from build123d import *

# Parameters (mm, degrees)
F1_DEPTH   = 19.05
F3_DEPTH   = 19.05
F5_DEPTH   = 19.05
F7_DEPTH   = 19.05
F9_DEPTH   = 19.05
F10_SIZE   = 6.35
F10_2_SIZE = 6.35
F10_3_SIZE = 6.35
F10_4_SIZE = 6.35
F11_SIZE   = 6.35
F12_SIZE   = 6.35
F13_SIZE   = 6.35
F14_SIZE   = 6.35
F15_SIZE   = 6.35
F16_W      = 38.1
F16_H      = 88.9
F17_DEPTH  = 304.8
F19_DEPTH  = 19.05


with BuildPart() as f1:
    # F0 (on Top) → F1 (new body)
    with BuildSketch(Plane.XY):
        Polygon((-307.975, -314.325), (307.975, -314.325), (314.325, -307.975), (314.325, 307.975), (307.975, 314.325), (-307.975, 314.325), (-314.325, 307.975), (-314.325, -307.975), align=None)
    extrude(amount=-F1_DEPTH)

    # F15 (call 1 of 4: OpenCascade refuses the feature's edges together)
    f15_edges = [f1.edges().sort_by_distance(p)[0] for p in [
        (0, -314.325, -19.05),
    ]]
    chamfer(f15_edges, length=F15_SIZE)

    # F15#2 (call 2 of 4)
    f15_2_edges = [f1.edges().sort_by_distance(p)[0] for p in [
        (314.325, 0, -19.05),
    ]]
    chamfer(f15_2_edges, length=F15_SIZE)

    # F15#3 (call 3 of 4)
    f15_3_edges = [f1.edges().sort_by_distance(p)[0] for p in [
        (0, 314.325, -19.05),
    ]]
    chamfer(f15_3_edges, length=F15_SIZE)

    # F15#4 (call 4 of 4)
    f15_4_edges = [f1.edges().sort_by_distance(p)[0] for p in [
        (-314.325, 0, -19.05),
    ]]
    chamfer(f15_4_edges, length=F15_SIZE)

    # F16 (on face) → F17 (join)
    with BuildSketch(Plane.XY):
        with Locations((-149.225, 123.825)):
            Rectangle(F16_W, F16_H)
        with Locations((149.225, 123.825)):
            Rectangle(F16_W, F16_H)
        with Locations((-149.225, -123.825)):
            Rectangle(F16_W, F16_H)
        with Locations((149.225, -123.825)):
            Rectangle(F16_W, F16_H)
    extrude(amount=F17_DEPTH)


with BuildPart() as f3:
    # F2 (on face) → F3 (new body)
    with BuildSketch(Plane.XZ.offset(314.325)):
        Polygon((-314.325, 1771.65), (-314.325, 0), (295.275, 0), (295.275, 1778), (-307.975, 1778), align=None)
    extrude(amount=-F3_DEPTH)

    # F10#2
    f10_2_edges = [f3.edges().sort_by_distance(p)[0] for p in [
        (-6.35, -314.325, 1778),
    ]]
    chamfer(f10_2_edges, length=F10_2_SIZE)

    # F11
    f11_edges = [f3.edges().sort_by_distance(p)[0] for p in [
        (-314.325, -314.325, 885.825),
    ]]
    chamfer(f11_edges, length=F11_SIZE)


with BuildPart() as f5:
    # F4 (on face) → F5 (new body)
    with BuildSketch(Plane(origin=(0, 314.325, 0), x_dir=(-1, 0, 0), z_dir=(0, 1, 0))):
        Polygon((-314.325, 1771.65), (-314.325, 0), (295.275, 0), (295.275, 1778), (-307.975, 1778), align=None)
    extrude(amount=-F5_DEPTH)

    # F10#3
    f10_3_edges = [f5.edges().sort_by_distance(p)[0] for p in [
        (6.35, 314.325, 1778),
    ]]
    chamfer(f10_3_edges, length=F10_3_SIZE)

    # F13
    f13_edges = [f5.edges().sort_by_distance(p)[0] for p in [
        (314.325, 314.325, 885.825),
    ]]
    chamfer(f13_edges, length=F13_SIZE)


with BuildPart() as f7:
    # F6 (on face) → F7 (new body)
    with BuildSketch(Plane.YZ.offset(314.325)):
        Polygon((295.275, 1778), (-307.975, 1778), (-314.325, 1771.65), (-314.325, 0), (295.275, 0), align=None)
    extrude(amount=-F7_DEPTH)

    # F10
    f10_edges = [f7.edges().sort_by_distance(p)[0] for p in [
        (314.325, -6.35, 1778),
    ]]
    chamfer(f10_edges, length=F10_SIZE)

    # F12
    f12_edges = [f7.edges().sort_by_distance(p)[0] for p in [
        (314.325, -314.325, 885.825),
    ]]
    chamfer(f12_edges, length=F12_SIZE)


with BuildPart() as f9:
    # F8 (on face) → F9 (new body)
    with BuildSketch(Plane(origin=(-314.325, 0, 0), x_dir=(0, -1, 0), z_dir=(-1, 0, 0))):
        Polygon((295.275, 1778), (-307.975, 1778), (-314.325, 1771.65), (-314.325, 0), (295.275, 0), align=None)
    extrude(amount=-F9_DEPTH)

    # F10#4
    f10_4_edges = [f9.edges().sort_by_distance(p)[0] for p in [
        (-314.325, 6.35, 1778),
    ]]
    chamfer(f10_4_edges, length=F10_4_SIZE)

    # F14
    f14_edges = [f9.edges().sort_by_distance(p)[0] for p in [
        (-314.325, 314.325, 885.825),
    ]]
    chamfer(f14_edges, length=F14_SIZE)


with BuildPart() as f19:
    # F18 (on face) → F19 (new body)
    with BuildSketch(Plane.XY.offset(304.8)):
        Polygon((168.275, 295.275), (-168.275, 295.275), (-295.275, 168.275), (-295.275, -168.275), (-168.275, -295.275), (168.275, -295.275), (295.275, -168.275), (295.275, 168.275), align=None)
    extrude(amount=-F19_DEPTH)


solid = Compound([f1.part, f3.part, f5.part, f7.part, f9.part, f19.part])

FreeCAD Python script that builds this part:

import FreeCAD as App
import Part
import Sketcher
from FreeCAD import Vector
Q = App.Units.Quantity


def edges_at(feature, points):
    """Names of the edges that pass closest to the given points."""
    edges = feature.Shape.Edges
    near = lambda p: min(range(len(edges)), key=lambda i: edges[i].distToShape(Part.Vertex(*p))[0])
    return sorted({f"Edge{near(p) + 1}" for p in points})


def add_polygon(sketch, points):
    """Adds a closed chain of lines whose ends are joined by coincident constraints."""
    first, n = sketch.GeometryCount, len(points)
    for a, b in zip(points, points[1:] + points[:1]):
        sketch.addGeometry(Part.LineSegment(App.Vector(*a, 0), App.Vector(*b, 0)), False)
    for i in range(n):
        sketch.addConstraint(Sketcher.Constraint("Coincident", first + i, 2, first + (i + 1) % n, 1))

doc = App.newDocument("Part")
body = doc.addObject("PartDesign::Body", "Body")

sketch1 = body.newObject("Sketcher::SketchObject", "Sketch")
sketch1.AttachmentSupport = (doc.getObject("XY_Plane"), [""])
sketch1.MapMode = "FlatFace"
add_polygon(sketch1, [(-308, -314), (308, -314), (314, -308), (314, 308), (308, 314), (-308, 314), (-314, 308), (-314, -308)])
sketch1.addConstraint([
    Sketcher.Constraint("Horizontal", 0),
    Sketcher.Constraint("Vertical", 2),
    Sketcher.Constraint("Horizontal", 4),
    Sketcher.Constraint("Vertical", 6),
    Sketcher.Constraint("Symmetric", 0, 2, 4, 2, -1, 1),
    Sketcher.Constraint("Symmetric", 1, 2, 5, 2, -1, 1),
    Sketcher.Constraint("Perpendicular", 1, 3),
    Sketcher.Constraint("Perpendicular", 5, 7),
    Sketcher.Constraint("Horizontal", 2, 2, 5, 2),
    Sketcher.Constraint("Horizontal", 1, 2, 6, 2),
    Sketcher.Constraint("Vertical", 0, 2, 3, 2),
    Sketcher.Constraint("Equal", 4, 2),
    Sketcher.Constraint("DistanceX", 0, 1, 0, 2, Q("24.25 in")),
    Sketcher.Constraint("DistanceY", 0, 2, 2, 2, Q("24.5 in")),
])
pad1 = body.newObject("PartDesign::Pad", "Pad")
pad1.Profile = sketch1
pad1.Length = Q("0.75 in")
pad1.Reversed = True
doc.recompute()

chamfer = body.newObject("PartDesign::Chamfer", "Chamfer")
chamfer.Base = (pad1, edges_at(pad1, [(0, -314.325, -19.05)]))
chamfer.Size = Q("0.25 in")
doc.recompute()

chamfer2 = body.newObject("PartDesign::Chamfer", "Chamfer001")
chamfer2.Base = (chamfer, edges_at(chamfer, [(314.325, 0, -19.05)]))
chamfer2.Size = Q("0.25 in")
doc.recompute()

chamfer3 = body.newObject("PartDesign::Chamfer", "Chamfer002")
chamfer3.Base = (chamfer2, edges_at(chamfer2, [(0, 314.325, -19.05)]))
chamfer3.Size = Q("0.25 in")
doc.recompute()

chamfer4 = body.newObject("PartDesign::Chamfer", "Chamfer003")
chamfer4.Base = (chamfer3, edges_at(chamfer3, [(-314.325, 0, -19.05)]))
chamfer4.Size = Q("0.25 in")

sketch2 = body.newObject("Sketcher::SketchObject", "Sketch001")
sketch2.AttachmentSupport = (doc.getObject("XY_Plane"), [""])
sketch2.MapMode = "FlatFace"
add_polygon(sketch2, [(-168, 168), (-168, 79), (-130, 79), (-130, 168)])
add_polygon(sketch2, [(130, 168), (130, 79), (168, 79), (168, 168)])
add_polygon(sketch2, [(-168, -79), (-168, -168), (-130, -168), (-130, -79)])
add_polygon(sketch2, [(130, -79), (130, -168), (168, -168), (168, -79)])
sketch2.addConstraint([
    Sketcher.Constraint("Vertical", 0),
    Sketcher.Constraint("Horizontal", 1),
    Sketcher.Constraint("Vertical", 2),
    Sketcher.Constraint("Horizontal", 3),
    Sketcher.Constraint("Vertical", 4),
    Sketcher.Constraint("Horizontal", 5),
    Sketcher.Constraint("Vertical", 6),
    Sketcher.Constraint("Horizontal", 7),
    Sketcher.Constraint("Vertical", 8),
    Sketcher.Constraint("Horizontal", 9),
    Sketcher.Constraint("Vertical", 10),
    Sketcher.Constraint("Horizontal", 11),
    Sketcher.Constraint("Vertical", 12),
    Sketcher.Constraint("Horizontal", 13),
    Sketcher.Constraint("Vertical", 14),
    Sketcher.Constraint("Horizontal", 15),
    Sketcher.Constraint("Symmetric", 6, 2, 8, 2, -1, 1),
    Sketcher.Constraint("Symmetric", 4, 2, 10, 2, -1, 1),
    Sketcher.Constraint("Symmetric", 2, 2, 12, 2, -1, 1),
    Sketcher.Constraint("Symmetric", 0, 2, 14, 2, -1, 1),
    Sketcher.Constraint("Symmetric", 1, 2, 4, 2, -2),
    Sketcher.Constraint("Symmetric", 3, 2, 6, 2, -2),
    Sketcher.Constraint("DistanceX", 1, 1, 1, 2, Q("1.5 in")),
    Sketcher.Constraint("DistanceY", 0, 2, 0, 1, Q("3.5 in")),
    Sketcher.Constraint("DistanceX", 1, 2, 4, 2, Q("10.25 in")),
    Sketcher.Constraint("DistanceY", 8, 2, 0, 2, Q("9.75 in")),
])
pad2 = body.newObject("PartDesign::Pad", "Pad001")
pad2.Profile = sketch2
pad2.Length = Q("12 in")
body2 = doc.addObject("PartDesign::Body", "Body001")

sketch3 = body2.newObject("Sketcher::SketchObject", "Sketch002")
sketch3.AttachmentSupport = (doc.getObject("XZ_Plane001"), [""])
sketch3.MapMode = "FlatFace"
sketch3.AttachmentOffset = App.Placement(Vector(0, 0, 12.375 * 25.4), App.Rotation())
add_polygon(sketch3, [(-314, 1772), (-314, 0), (295, 0), (295, 1778), (-308, 1778)])
sketch3.addConstraint([
    Sketcher.Constraint("Vertical", 0),
    Sketcher.Constraint("Horizontal", 1),
    Sketcher.Constraint("Vertical", 2),
    Sketcher.Constraint("Horizontal", 3),
    Sketcher.Constraint("PointOnObject", 0, 2, -1),
    Sketcher.Constraint("DistanceX", 1, 1, 1, 2, Q("24 in")),
    Sketcher.Constraint("DistanceY", 2, 1, 2, 2, Q("70 in")),
    Sketcher.Constraint("Angle", 4, Q("-135 deg")),
    Sketcher.Constraint("DistanceX", 3, 2, 3, 1, Q("23.75 in")),
    Sketcher.Constraint("DistanceX", 0, 2, -1, 1, Q("12.375 in")),
])
pad3 = body2.newObject("PartDesign::Pad", "Pad002")
pad3.Profile = sketch3
pad3.Length = Q("0.75 in")
pad3.Reversed = True
doc.recompute()

chamfer5 = body2.newObject("PartDesign::Chamfer", "Chamfer004")
chamfer5.Base = (pad3, edges_at(pad3, [(-6.35, -314.325, 1778)]))
chamfer5.Size = Q("0.25 in")
doc.recompute()

chamfer6 = body2.newObject("PartDesign::Chamfer", "Chamfer005")
chamfer6.Base = (chamfer5, edges_at(chamfer5, [(-314.325, -314.325, 885.825)]))
chamfer6.Size = Q("0.25 in")
body3 = doc.addObject("PartDesign::Body", "Body002")

sketch4 = body3.newObject("Sketcher::SketchObject", "Sketch003")
sketch4.AttachmentSupport = (doc.getObject("XZ_Plane002"), [""])
sketch4.MapMode = "FlatFace"
sketch4.AttachmentOffset = App.Placement(Vector(0, 0, -12.375 * 25.4), App.Rotation())
add_polygon(sketch4, [(314, 1772), (314, 0), (-295, 0), (-295, 1778), (308, 1778)])
sketch4.addConstraint([
    Sketcher.Constraint("Vertical", 0),
    Sketcher.Constraint("Horizontal", 1),
    Sketcher.Constraint("Vertical", 2),
    Sketcher.Constraint("Horizontal", 3),
    Sketcher.Constraint("PointOnObject", 0, 2, -1),
    Sketcher.Constraint("DistanceX", 1, 2, 1, 1, Q("24 in")),
    Sketcher.Constraint("DistanceY", 2, 1, 2, 2, Q("70 in")),
    Sketcher.Constraint("Angle", 4, Q("-45 deg")),
    Sketcher.Constraint("DistanceX", 3, 1, 3, 2, Q("23.75 in")),
    Sketcher.Constraint("DistanceX", -1, 1, 0, 2, Q("12.375 in")),
])
pad4 = body3.newObject("PartDesign::Pad", "Pad003")
pad4.Profile = sketch4
pad4.Length = Q("0.75 in")
doc.recompute()

chamfer7 = body3.newObject("PartDesign::Chamfer", "Chamfer006")
chamfer7.Base = (pad4, edges_at(pad4, [(6.35, 314.325, 1778)]))
chamfer7.Size = Q("0.25 in")
doc.recompute()

chamfer8 = body3.newObject("PartDesign::Chamfer", "Chamfer007")
chamfer8.Base = (chamfer7, edges_at(chamfer7, [(314.325, 314.325, 885.825)]))
chamfer8.Size = Q("0.25 in")
body4 = doc.addObject("PartDesign::Body", "Body003")

sketch5 = body4.newObject("Sketcher::SketchObject", "Sketch004")
sketch5.AttachmentSupport = (doc.getObject("YZ_Plane003"), [""])
sketch5.MapMode = "FlatFace"
sketch5.AttachmentOffset = App.Placement(Vector(0, 0, 12.375 * 25.4), App.Rotation())
add_polygon(sketch5, [(295, 1778), (-308, 1778), (-314, 1772), (-314, 0), (295, 0)])
sketch5.addConstraint([
    Sketcher.Constraint("Horizontal", 0),
    Sketcher.Constraint("Vertical", 2),
    Sketcher.Constraint("Horizontal", 3),
    Sketcher.Constraint("Vertical", 4),
    Sketcher.Constraint("PointOnObject", 2, 2, -1),
    Sketcher.Constraint("DistanceX", 3, 1, 3, 2, Q("24 in")),
    Sketcher.Constraint("DistanceY", 4, 1, 4, 2, Q("70 in")),
    Sketcher.Constraint("Angle", 1, Q("-135 deg")),
    Sketcher.Constraint("DistanceX", 0, 2, 0, 1, Q("23.75 in")),
    Sketcher.Constraint("DistanceX", 0, 2, -1, 1, Q("12.125 in")),
])
pad5 = body4.newObject("PartDesign::Pad", "Pad004")
pad5.Profile = sketch5
pad5.Length = Q("0.75 in")
pad5.Reversed = True
doc.recompute()

chamfer9 = body4.newObject("PartDesign::Chamfer", "Chamfer008")
chamfer9.Base = (pad5, edges_at(pad5, [(314.325, -6.35, 1778)]))
chamfer9.Size = Q("0.25 in")
doc.recompute()

chamfer10 = body4.newObject("PartDesign::Chamfer", "Chamfer009")
chamfer10.Base = (chamfer9, edges_at(chamfer9, [(314.325, -314.325, 885.825)]))
chamfer10.Size = Q("0.25 in")
body5 = doc.addObject("PartDesign::Body", "Body004")

sketch6 = body5.newObject("Sketcher::SketchObject", "Sketch005")
sketch6.AttachmentSupport = (doc.getObject("YZ_Plane004"), [""])
sketch6.MapMode = "FlatFace"
sketch6.AttachmentOffset = App.Placement(Vector(0, 0, -12.375 * 25.4), App.Rotation())
add_polygon(sketch6, [(-295, 1778), (308, 1778), (314, 1772), (314, 0), (-295, 0)])
sketch6.addConstraint([
    Sketcher.Constraint("Horizontal", 0),
    Sketcher.Constraint("Vertical", 2),
    Sketcher.Constraint("Horizontal", 3),
    Sketcher.Constraint("Vertical", 4),
    Sketcher.Constraint("PointOnObject", 2, 2, -1),
    Sketcher.Constraint("DistanceX", 3, 2, 3, 1, Q("24 in")),
    Sketcher.Constraint("DistanceY", 4, 1, 4, 2, Q("70 in")),
    Sketcher.Constraint("Angle", 1, Q("-45 deg")),
    Sketcher.Constraint("DistanceX", 0, 1, 0, 2, Q("23.75 in")),
    Sketcher.Constraint("DistanceX", -1, 1, 0, 2, Q("12.125 in")),
])
pad6 = body5.newObject("PartDesign::Pad", "Pad005")
pad6.Profile = sketch6
pad6.Length = Q("0.75 in")
doc.recompute()

chamfer11 = body5.newObject("PartDesign::Chamfer", "Chamfer010")
chamfer11.Base = (pad6, edges_at(pad6, [(-314.325, 6.35, 1778)]))
chamfer11.Size = Q("0.25 in")
doc.recompute()

chamfer12 = body5.newObject("PartDesign::Chamfer", "Chamfer011")
chamfer12.Base = (chamfer11, edges_at(chamfer11, [(-314.325, 314.325, 885.825)]))
chamfer12.Size = Q("0.25 in")
body6 = doc.addObject("PartDesign::Body", "Body005")

sketch7 = body6.newObject("Sketcher::SketchObject", "Sketch006")
sketch7.AttachmentSupport = (doc.getObject("XY_Plane005"), [""])
sketch7.MapMode = "FlatFace"
sketch7.AttachmentOffset = App.Placement(Vector(0, 0, 12 * 25.4), App.Rotation())
add_polygon(sketch7, [(168, 295), (-168, 295), (-295, 168), (-295, -168), (-168, -295), (168, -295), (295, -168), (295, 168)])
sketch7.addConstraint([
    Sketcher.Constraint("Horizontal", 0),
    Sketcher.Constraint("Vertical", 2),
    Sketcher.Constraint("Horizontal", 4),
    Sketcher.Constraint("Vertical", 6),
    Sketcher.Constraint("Symmetric", 0, 2, 4, 2, -1, 1),
    Sketcher.Constraint("Symmetric", 1, 2, 5, 2, -1, 1),
    Sketcher.Constraint("Perpendicular", 1, 3),
    Sketcher.Constraint("Perpendicular", 5, 7),
    Sketcher.Constraint("Horizontal", 2, 2, 5, 2),
    Sketcher.Constraint("Horizontal", 1, 2, 6, 2),
    Sketcher.Constraint("Vertical", 0, 2, 3, 2),
    Sketcher.Constraint("Equal", 4, 2),
    Sketcher.Constraint("DistanceX", 1, 2, 0, 2, Q("5 in")),
    Sketcher.Constraint("DistanceX", 0, 2, 0, 1, Q("13.25 in")),
])
pad7 = body6.newObject("PartDesign::Pad", "Pad006")
pad7.Profile = sketch7
pad7.Length = Q("0.75 in")
pad7.Reversed = True

doc.recompute()
